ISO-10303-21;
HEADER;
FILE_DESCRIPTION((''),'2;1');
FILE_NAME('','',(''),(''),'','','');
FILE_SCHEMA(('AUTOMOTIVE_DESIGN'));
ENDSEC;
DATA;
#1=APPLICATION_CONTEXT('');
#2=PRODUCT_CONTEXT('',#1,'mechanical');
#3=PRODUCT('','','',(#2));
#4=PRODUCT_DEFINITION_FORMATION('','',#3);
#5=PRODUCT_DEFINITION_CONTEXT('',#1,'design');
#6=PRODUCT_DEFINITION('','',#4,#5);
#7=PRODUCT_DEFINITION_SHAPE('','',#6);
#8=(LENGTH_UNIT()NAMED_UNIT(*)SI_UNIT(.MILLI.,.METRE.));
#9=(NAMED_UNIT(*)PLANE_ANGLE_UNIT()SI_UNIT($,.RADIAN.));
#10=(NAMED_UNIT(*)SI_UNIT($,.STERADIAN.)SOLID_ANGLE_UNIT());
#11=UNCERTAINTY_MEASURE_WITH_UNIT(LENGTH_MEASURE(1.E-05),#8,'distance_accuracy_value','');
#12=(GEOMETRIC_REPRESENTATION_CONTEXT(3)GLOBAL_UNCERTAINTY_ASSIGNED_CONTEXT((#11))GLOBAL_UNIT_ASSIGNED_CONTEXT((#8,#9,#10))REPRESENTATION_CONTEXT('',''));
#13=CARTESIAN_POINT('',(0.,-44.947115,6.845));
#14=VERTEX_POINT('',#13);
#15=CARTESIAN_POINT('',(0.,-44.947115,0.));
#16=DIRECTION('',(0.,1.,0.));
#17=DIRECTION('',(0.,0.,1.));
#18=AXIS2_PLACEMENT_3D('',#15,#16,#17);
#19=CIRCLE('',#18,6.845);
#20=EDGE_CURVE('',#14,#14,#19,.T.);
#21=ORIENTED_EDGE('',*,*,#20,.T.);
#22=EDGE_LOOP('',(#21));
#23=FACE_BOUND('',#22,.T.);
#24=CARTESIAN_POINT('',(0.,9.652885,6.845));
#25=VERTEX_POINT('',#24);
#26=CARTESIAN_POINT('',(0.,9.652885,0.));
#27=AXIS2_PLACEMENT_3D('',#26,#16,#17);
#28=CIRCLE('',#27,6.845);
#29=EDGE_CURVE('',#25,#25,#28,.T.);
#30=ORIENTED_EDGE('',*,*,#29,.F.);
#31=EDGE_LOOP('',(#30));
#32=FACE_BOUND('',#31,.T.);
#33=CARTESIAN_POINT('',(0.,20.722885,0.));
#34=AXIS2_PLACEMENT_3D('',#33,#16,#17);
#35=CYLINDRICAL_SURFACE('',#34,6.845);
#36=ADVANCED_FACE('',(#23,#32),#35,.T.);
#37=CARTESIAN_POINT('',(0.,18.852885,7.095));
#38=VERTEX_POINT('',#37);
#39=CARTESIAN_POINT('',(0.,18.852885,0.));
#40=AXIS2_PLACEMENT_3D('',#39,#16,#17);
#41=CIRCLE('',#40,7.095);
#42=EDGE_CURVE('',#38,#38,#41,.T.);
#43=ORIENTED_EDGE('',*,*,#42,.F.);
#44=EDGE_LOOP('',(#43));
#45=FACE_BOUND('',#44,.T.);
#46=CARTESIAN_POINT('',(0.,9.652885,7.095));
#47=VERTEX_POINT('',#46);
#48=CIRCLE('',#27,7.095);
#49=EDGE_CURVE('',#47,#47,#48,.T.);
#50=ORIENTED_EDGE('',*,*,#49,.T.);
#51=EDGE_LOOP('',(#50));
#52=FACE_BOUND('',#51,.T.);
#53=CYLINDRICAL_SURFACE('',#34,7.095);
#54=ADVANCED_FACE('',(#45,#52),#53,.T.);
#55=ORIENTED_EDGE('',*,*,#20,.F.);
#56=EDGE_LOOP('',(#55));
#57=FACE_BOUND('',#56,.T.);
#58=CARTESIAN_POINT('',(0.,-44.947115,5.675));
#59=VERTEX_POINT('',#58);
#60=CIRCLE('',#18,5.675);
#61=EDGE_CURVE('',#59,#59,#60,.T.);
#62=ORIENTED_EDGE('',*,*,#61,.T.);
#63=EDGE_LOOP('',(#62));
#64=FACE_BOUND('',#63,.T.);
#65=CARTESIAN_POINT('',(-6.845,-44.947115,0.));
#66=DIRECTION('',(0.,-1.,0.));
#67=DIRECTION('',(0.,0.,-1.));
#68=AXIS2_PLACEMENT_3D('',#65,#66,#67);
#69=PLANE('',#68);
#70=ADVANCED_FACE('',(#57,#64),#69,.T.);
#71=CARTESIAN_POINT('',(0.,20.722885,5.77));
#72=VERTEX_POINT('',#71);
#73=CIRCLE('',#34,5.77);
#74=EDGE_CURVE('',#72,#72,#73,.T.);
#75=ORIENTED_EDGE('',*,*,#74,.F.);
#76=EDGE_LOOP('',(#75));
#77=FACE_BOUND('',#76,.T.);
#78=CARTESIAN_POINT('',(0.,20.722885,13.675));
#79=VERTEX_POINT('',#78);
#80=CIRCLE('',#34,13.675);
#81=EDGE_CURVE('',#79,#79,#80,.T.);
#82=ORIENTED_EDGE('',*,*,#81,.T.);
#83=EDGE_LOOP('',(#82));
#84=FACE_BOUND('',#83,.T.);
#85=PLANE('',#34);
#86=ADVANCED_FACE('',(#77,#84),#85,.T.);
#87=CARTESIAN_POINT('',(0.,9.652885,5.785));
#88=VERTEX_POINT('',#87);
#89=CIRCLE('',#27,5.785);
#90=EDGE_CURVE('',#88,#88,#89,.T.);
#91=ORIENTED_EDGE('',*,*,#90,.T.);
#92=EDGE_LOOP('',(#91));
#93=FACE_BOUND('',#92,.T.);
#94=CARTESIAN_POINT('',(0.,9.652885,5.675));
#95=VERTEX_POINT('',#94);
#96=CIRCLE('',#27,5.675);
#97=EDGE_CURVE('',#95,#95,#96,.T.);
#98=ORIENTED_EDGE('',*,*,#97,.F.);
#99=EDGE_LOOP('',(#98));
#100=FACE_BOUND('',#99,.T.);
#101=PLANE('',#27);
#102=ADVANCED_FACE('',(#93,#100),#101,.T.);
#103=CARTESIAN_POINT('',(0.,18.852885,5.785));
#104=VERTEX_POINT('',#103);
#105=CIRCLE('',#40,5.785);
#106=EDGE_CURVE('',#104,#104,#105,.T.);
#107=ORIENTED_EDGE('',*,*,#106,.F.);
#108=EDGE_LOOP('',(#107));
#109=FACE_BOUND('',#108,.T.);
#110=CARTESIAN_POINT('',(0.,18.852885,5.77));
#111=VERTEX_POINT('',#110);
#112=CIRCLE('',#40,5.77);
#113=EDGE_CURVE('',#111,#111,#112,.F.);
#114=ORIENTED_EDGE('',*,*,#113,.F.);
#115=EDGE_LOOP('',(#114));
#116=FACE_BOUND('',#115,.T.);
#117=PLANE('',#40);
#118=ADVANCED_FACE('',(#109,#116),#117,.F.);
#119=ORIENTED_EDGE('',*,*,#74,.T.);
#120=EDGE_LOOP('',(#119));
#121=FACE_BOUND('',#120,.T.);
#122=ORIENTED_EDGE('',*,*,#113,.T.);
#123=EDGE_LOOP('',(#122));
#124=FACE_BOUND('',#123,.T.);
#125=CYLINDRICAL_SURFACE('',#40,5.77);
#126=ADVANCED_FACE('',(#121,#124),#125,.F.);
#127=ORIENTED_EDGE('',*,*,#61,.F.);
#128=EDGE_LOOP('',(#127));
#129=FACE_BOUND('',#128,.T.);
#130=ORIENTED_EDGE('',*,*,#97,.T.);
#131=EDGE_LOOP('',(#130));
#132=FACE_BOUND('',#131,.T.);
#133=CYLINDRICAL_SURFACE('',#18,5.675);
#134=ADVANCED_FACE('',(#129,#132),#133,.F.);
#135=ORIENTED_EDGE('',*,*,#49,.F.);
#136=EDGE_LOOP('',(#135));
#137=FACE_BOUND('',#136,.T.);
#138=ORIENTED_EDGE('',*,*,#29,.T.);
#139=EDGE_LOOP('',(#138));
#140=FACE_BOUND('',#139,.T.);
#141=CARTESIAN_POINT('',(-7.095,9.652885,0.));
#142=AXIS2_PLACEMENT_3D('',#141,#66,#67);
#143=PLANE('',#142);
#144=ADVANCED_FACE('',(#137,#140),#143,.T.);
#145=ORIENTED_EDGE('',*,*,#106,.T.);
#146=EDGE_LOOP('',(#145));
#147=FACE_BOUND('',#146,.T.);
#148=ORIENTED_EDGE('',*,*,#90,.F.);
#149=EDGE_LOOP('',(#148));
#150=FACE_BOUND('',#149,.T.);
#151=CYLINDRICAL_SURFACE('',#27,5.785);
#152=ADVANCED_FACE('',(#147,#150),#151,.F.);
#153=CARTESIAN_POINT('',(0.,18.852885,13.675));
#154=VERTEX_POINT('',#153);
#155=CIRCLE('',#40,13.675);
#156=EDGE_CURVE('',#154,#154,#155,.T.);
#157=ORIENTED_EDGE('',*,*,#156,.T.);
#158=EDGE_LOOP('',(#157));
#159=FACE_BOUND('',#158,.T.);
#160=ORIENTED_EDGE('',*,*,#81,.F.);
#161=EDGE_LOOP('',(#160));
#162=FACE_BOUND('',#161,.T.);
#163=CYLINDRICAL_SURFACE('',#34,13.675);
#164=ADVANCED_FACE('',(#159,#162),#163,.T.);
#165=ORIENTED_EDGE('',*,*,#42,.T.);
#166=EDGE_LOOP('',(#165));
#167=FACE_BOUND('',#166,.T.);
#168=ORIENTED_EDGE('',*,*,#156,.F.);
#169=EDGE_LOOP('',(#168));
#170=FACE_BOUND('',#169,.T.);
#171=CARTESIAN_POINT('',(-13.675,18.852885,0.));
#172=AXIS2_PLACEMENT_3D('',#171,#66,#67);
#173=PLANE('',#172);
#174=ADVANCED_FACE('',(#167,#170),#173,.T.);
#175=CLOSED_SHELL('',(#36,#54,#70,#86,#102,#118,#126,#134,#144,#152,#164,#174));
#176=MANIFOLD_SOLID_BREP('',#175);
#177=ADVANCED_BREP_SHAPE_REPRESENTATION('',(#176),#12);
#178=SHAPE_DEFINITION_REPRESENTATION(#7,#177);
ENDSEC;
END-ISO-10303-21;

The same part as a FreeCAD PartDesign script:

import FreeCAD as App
import Part
import Sketcher
from FreeCAD import Vector


def add_polygon(sketch, points):
    """Adds a closed chain of lines whose ends are joined by coincident constraints."""
    first, n = sketch.GeometryCount, len(points)
    for a, b in zip(points, points[1:] + points[:1]):
        sketch.addGeometry(Part.LineSegment(App.Vector(*a, 0), App.Vector(*b, 0)), False)
    for i in range(n):
        sketch.addConstraint(Sketcher.Constraint("Coincident", first + i, 2, first + (i + 1) % n, 1))

doc = App.newDocument("Part")
params = doc.addObject("Spreadsheet::Sheet", "Params")
for row, (alias, value) in enumerate([
    ("sketch1_height", "9.2 mm"),
    ("sketch1_height2", "54.6 mm"),
    ("sketch1_width", "6.58 mm"),
    ("sketch1_width2", "0.25 mm"),
    ("sketch1_height3", "65.67 mm"),
    ("revolution_angle", "360 deg"),
    ("sketch2_diameter", "11.54 mm"),
    ("pocket1_length", "1.87 mm"),
    ("sketch3_diameter", "11.57 mm"),
    ("pocket2_length", "9.2 mm"),
    ("sketch4_diameter", "11.35 mm"),
    ("pocket3_length", "54.6 mm"),
], start=1):
    params.set(f"A{row}", alias)
    params.set(f"B{row}", "=" + value)
    params.setAlias(f"B{row}", alias)

body = doc.addObject("PartDesign::Body", "Body")

# Sketch on XY plane
sketch1 = body.newObject("Sketcher::SketchObject", "Sketch")
sketch1.AttachmentSupport = (doc.getObject("XY_Plane"), [""])
sketch1.MapMode = "FlatFace"
add_polygon(sketch1, [(0, -44.95), (0, 20.72), (-13.68, 20.72), (-13.68, 18.85), (-7.09, 18.85), (-7.09, 9.65), (-6.84, 9.65), (-6.84, -44.95)])  # lines 0-7
sketch1.addConstraint([
    Sketcher.Constraint("Vertical", 0),
    Sketcher.Constraint("Horizontal", 1),
    Sketcher.Constraint("Vertical", 2),
    Sketcher.Constraint("Horizontal", 3),
    Sketcher.Constraint("Vertical", 4),
    Sketcher.Constraint("Horizontal", 5),
    Sketcher.Constraint("Vertical", 6),
    Sketcher.Constraint("Horizontal", 7),
    Sketcher.Constraint("PointOnObject", 0, 2, -2),
    Sketcher.Constraint("DistanceY", 4, 2, 4, 1, 9.2),
    Sketcher.Constraint("DistanceY", 6, 2, 6, 1, 54.6),
    Sketcher.Constraint("DistanceX", 3, 1, 3, 2, 6.58),
    Sketcher.Constraint("DistanceX", 5, 1, 5, 2, 0.25),
    Sketcher.Constraint("DistanceY", 0, 1, 0, 2, 65.67),
    Sketcher.Constraint("DistanceX", 1, 2, 1, 1, 13.675),
    Sketcher.Constraint("DistanceY", -1, 1, 0, 2, 20.722885),
])
sketch1.setExpression("Constraints[17]", "Params.sketch1_height")
sketch1.setExpression("Constraints[18]", "Params.sketch1_height2")
sketch1.setExpression("Constraints[19]", "Params.sketch1_width")
sketch1.setExpression("Constraints[20]", "Params.sketch1_width2")
sketch1.setExpression("Constraints[21]", "Params.sketch1_height3")
revolution = body.newObject("PartDesign::Revolution", "Revolution")
revolution.Profile = sketch1
revolution.ReferenceAxis = (sketch1, ["V_Axis"])
revolution.setExpression("Angle", "Params.revolution_angle")

# Sketch on XZ plane
sketch2 = body.newObject("Sketcher::SketchObject", "Sketch001")
sketch2.AttachmentSupport = (doc.getObject("XZ_Plane"), [""])
sketch2.MapMode = "FlatFace"
sketch2.AttachmentOffset = App.Placement(Vector(0, 0, -20.722885), App.Rotation())
sketch2.addGeometry(Part.Circle(Vector(0, 0, 0), Vector(0, 0, 1), 6), False)
sketch2.addConstraint([
    Sketcher.Constraint("Coincident", 0, 3, -1, 1),
    Sketcher.Constraint("Diameter", 0, 11.54),
])
sketch2.setExpression("Constraints[1]", "Params.sketch2_diameter")
pocket1 = body.newObject("PartDesign::Pocket", "Pocket")
pocket1.Profile = sketch2
pocket1.setExpression("Length", "Params.pocket1_length")
pocket1.Reversed = True

# Sketch on XZ plane
sketch3 = body.newObject("Sketcher::SketchObject", "Sketch002")
sketch3.AttachmentSupport = (doc.getObject("XZ_Plane"), [""])
sketch3.MapMode = "FlatFace"
sketch3.AttachmentOffset = App.Placement(Vector(0, 0, -18.852885), App.Rotation())
sketch3.addGeometry(Part.Circle(Vector(0, 0, 0), Vector(0, 0, 1), 6), False)
sketch3.addConstraint([
    Sketcher.Constraint("Coincident", 0, 3, -1, 1),
    Sketcher.Constraint("Diameter", 0, 11.57),
])
sketch3.setExpression("Constraints[1]", "Params.sketch3_diameter")
pocket2 = body.newObject("PartDesign::Pocket", "Pocket001")
pocket2.Profile = sketch3
pocket2.setExpression("Length", "Params.pocket2_length")
pocket2.Reversed = True

# Sketch on XZ plane
sketch4 = body.newObject("Sketcher::SketchObject", "Sketch003")
sketch4.AttachmentSupport = (doc.getObject("XZ_Plane"), [""])
sketch4.MapMode = "FlatFace"
sketch4.AttachmentOffset = App.Placement(Vector(0, 0, -9.652885), App.Rotation())
sketch4.addGeometry(Part.Circle(Vector(0, 0, 0), Vector(0, 0, 1), 6), False)
sketch4.addConstraint([
    Sketcher.Constraint("Coincident", 0, 3, -1, 1),
    Sketcher.Constraint("Diameter", 0, 11.35),
])
sketch4.setExpression("Constraints[1]", "Params.sketch4_diameter")
pocket3 = body.newObject("PartDesign::Pocket", "Pocket002")
pocket3.Profile = sketch4
pocket3.setExpression("Length", "Params.pocket3_length")
pocket3.Reversed = True

doc.recompute()
